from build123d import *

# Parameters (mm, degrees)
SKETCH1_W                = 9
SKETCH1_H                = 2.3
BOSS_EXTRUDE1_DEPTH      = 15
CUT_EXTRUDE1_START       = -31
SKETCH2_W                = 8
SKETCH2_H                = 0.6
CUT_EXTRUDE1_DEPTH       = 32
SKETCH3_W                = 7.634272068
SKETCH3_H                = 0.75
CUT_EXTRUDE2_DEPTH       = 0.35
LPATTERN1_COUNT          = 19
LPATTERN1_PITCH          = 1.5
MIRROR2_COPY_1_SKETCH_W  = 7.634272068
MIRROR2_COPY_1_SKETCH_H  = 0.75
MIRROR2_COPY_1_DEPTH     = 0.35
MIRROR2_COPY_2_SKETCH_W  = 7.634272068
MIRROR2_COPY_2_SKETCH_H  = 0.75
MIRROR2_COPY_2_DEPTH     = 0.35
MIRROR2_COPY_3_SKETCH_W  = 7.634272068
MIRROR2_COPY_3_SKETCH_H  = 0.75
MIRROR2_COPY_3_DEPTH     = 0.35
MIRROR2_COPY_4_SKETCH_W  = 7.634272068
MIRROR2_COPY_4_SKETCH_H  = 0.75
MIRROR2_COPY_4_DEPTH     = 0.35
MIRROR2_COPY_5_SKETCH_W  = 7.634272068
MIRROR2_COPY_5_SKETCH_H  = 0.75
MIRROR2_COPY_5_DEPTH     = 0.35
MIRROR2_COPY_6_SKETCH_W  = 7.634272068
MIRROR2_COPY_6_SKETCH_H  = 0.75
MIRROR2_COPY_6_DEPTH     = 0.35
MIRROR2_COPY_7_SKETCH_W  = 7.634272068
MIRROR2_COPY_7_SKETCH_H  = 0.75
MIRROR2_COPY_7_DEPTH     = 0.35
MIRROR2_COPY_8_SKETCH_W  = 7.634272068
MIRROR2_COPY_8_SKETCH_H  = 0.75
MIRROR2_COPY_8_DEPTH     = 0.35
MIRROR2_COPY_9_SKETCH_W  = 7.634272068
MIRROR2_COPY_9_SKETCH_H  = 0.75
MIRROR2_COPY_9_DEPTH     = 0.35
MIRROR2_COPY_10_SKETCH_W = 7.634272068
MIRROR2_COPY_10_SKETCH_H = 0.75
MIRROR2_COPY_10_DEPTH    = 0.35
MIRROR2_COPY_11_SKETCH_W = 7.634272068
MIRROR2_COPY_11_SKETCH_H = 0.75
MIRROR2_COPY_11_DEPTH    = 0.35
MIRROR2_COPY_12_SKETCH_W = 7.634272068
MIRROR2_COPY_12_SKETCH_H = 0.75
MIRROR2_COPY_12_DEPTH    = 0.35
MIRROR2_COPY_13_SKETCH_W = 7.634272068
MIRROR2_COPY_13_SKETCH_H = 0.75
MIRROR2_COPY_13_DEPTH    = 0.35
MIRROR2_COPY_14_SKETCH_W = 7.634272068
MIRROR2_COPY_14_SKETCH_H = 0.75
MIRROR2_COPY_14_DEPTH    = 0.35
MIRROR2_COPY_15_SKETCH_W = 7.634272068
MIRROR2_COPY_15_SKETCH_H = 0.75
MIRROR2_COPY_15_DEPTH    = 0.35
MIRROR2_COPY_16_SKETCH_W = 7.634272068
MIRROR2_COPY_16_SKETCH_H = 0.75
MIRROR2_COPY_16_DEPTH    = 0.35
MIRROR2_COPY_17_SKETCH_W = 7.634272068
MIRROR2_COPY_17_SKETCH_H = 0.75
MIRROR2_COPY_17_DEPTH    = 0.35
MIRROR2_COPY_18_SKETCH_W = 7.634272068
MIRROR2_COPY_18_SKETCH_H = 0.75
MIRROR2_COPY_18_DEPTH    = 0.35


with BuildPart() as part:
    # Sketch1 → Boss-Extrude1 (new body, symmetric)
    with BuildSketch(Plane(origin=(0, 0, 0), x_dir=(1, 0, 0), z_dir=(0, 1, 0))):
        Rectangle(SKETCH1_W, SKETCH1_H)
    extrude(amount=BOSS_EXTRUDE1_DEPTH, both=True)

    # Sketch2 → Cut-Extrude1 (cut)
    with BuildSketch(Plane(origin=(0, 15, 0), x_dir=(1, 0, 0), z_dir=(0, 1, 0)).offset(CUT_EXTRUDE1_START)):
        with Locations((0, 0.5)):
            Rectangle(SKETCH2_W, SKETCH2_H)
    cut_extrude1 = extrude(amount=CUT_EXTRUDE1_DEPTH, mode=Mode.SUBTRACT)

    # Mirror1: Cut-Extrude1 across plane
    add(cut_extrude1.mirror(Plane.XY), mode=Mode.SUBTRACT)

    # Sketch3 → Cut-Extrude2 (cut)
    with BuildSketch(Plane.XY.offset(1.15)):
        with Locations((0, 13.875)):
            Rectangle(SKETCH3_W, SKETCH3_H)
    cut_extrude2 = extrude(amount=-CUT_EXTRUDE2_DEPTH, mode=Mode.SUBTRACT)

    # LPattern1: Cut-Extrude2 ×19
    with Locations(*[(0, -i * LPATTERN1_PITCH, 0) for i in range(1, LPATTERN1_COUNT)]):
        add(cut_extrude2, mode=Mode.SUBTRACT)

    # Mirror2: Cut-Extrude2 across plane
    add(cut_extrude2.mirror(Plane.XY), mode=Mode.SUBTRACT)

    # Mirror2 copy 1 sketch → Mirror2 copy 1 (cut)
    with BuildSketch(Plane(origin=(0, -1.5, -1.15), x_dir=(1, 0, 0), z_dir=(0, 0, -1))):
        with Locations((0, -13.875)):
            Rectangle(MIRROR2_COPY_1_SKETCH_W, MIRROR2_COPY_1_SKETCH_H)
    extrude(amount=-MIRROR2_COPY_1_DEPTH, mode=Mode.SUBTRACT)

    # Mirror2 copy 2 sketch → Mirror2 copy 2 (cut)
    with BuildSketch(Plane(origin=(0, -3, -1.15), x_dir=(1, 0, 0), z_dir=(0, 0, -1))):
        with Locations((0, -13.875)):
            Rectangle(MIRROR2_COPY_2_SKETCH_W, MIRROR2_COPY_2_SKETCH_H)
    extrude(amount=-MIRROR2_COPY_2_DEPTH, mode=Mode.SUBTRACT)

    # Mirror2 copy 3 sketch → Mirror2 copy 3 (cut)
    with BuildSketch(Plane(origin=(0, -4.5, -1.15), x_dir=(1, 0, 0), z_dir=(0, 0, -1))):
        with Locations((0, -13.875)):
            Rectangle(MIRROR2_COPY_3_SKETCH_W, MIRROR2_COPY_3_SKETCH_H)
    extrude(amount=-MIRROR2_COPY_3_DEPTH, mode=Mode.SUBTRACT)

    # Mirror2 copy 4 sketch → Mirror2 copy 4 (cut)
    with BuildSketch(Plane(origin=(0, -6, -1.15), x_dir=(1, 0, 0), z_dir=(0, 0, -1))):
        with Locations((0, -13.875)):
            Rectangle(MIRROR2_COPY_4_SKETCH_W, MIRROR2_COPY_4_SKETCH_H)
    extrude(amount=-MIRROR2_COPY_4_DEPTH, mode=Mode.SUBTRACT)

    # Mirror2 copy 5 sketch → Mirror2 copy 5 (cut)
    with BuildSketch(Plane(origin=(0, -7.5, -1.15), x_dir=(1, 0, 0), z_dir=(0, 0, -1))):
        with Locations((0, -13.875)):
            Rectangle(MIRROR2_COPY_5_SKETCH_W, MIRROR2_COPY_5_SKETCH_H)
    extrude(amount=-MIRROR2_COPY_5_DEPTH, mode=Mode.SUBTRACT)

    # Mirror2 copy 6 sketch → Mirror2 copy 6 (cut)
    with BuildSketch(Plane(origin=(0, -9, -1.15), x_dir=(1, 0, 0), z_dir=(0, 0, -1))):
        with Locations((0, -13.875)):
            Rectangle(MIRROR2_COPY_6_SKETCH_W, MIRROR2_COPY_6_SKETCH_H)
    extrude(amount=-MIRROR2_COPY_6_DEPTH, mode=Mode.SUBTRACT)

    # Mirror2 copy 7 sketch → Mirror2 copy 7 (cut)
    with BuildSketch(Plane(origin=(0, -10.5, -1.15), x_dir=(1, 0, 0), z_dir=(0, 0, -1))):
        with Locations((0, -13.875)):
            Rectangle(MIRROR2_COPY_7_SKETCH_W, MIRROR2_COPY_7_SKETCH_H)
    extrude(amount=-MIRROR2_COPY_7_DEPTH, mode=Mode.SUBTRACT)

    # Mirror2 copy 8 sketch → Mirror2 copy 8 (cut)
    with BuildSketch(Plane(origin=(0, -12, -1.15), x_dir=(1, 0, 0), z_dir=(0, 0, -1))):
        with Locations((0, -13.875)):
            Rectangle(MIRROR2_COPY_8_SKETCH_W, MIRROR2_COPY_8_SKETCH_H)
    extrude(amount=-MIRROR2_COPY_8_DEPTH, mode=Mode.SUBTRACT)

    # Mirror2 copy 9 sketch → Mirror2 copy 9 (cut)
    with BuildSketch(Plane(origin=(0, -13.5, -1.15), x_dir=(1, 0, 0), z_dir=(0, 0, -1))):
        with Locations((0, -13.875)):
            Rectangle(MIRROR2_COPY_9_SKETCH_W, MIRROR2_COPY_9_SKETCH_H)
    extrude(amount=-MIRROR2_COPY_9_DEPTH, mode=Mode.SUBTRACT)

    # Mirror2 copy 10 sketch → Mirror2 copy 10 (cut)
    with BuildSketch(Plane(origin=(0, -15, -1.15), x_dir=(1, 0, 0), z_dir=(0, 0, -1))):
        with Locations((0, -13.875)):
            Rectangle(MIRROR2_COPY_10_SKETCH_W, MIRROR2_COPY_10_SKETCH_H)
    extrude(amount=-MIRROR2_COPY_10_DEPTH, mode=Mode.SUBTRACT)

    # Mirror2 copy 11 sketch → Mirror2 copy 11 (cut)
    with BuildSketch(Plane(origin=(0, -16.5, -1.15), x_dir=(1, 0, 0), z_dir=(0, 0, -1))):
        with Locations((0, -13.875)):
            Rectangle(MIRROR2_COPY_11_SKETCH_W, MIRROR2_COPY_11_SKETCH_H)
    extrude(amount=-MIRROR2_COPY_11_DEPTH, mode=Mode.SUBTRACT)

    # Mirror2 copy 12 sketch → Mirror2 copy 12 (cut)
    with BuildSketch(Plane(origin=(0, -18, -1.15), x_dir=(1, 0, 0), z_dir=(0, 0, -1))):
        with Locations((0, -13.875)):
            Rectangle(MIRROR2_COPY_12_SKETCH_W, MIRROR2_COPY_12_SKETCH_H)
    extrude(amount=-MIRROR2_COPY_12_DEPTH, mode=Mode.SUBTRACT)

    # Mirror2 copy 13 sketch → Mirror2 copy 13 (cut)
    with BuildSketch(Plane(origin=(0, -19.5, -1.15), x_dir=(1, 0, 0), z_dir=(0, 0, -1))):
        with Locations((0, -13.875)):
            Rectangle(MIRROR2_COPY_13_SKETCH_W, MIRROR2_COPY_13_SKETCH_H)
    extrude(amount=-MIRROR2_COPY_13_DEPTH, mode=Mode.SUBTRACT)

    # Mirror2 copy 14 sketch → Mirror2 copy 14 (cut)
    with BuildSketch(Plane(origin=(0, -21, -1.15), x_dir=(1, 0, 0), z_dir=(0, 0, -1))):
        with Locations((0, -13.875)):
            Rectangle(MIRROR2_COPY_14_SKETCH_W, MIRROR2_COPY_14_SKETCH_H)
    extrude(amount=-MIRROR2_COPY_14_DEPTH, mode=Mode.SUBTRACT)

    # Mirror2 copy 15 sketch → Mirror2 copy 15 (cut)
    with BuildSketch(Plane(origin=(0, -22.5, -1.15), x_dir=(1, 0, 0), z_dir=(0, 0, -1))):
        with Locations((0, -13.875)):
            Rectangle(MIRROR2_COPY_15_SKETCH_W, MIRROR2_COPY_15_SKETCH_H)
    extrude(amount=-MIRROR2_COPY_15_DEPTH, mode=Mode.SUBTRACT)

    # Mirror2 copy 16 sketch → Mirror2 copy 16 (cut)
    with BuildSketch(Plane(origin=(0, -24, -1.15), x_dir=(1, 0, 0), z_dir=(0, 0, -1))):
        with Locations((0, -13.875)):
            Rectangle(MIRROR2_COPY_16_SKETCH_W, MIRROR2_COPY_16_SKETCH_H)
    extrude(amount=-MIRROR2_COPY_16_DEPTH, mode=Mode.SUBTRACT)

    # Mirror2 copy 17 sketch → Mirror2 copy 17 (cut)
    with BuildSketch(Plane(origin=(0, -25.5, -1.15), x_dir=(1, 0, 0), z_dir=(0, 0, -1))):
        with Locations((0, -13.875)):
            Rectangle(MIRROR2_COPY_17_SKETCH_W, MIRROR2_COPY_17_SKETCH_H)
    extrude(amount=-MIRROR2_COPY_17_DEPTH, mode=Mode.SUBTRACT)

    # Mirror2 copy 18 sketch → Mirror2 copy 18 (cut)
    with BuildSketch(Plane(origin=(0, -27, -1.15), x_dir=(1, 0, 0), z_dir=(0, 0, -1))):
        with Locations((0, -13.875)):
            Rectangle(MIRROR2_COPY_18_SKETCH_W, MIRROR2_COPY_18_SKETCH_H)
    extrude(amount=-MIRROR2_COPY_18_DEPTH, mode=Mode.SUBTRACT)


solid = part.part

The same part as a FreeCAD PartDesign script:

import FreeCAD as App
import Part
import Sketcher

V = App.Vector


def add_polygon(sketch, points):
    """Adds a closed chain of lines whose ends are joined by coincident constraints."""
    first, n = sketch.GeometryCount, len(points)
    for a, b in zip(points, points[1:] + points[:1]):
        sketch.addGeometry(Part.LineSegment(App.Vector(*a, 0), App.Vector(*b, 0)), False)
    for i in range(n):
        sketch.addConstraint(Sketcher.Constraint("Coincident", first + i, 2, first + (i + 1) % n, 1))

doc = App.newDocument("Part")
body = doc.addObject("PartDesign::Body", "Body")

sketch1 = body.newObject("Sketcher::SketchObject", "Sketch")
sketch1.AttachmentSupport = (doc.getObject("XZ_Plane"), [""])
sketch1.MapMode = "FlatFace"
add_polygon(sketch1, [(-4.5, -1.1), (-4.5, 1.1), (4.5, 1.1), (4.5, -1.1)])
sketch1.addConstraint([
    Sketcher.Constraint("Vertical", 0),
    Sketcher.Constraint("Horizontal", 1),
    Sketcher.Constraint("Vertical", 2),
    Sketcher.Constraint("Horizontal", 3),
    Sketcher.Constraint("Symmetric", 0, 2, 2, 2, -1, 1),
    Sketcher.Constraint("DistanceX", 1, 1, 1, 2, 9.0),
    Sketcher.Constraint("DistanceY", 0, 1, 0, 2, 2.3),
])
pad1 = body.newObject("PartDesign::Pad", "Pad")
pad1.Profile = sketch1
pad1.Length = 30
pad1.Midplane = True

sketch2 = body.newObject("Sketcher::SketchObject", "Sketch001")
sketch2.AttachmentSupport = (doc.getObject("XZ_Plane"), [""])
sketch2.MapMode = "FlatFace"
sketch2.AttachmentOffset = App.Placement(V(0, 0, 16), App.Rotation())
add_polygon(sketch2, [(-4, -0.8), (-4, -0.2), (4, -0.2), (4, -0.8)])
sketch2.addConstraint([
    Sketcher.Constraint("Vertical", 0),
    Sketcher.Constraint("Horizontal", 1),
    Sketcher.Constraint("Vertical", 2),
    Sketcher.Constraint("Horizontal", 3),
    Sketcher.Constraint("DistanceX", 1, 1, 1, 2, 8.0),
    Sketcher.Constraint("DistanceY", 0, 1, 0, 2, 0.6),
    Sketcher.Constraint("DistanceX", 0, 2, -1, 1, 4.0),
    Sketcher.Constraint("DistanceY", 0, 2, -1, 1, 0.2),
])
pocket1 = body.newObject("PartDesign::Pocket", "Pocket")
pocket1.Profile = sketch2
pocket1.Length = 32
doc.recompute()

mirrored = body.newObject("PartDesign::Mirrored", "Mirrored")
mirrored.Originals = [pocket1]
mirrored.MirrorPlane = (doc.getObject("XY_Plane"), [""])
body.Tip = mirrored

sketch3 = body.newObject("Sketcher::SketchObject", "Sketch002")
sketch3.AttachmentSupport = (doc.getObject("XY_Plane"), [""])
sketch3.MapMode = "FlatFace"
sketch3.AttachmentOffset = App.Placement(V(0, 0, 1.15), App.Rotation())
add_polygon(sketch3, [(-3.8, 14.2), (-3.8, 13.5), (3.8, 13.5), (3.8, 14.2)])
sketch3.addConstraint([
    Sketcher.Constraint("Vertical", 0),
    Sketcher.Constraint("Horizontal", 1),
    Sketcher.Constraint("Vertical", 2),
    Sketcher.Constraint("Horizontal", 3),
    Sketcher.Constraint("DistanceY", 0, 2, 0, 1, 0.75),
    Sketcher.Constraint("DistanceY", -1, 1, 0, 2, 13.5),
    Sketcher.Constraint("DistanceX", 1, 1, 1, 2, 7.634272),
    Sketcher.Constraint("DistanceX", 0, 2, -1, 1, 3.817136),
])
pocket2 = body.newObject("PartDesign::Pocket", "Pocket001")
pocket2.Profile = sketch3
pocket2.Length = 0.35
doc.recompute()

linearpattern = body.newObject("PartDesign::LinearPattern", "LinearPattern")
linearpattern.Originals = [pocket2]
linearpattern.Direction = (doc.getObject("Y_Axis"), [""])
linearpattern.Mode = "offset"
linearpattern.Offset = 1.5
linearpattern.Occurrences = 19
linearpattern.Reversed = True
body.Tip = linearpattern
doc.recompute()

mirrored2 = body.newObject("PartDesign::Mirrored", "Mirrored001")
mirrored2.Originals = [pocket2]
mirrored2.MirrorPlane = (doc.getObject("XY_Plane"), [""])
body.Tip = mirrored2

sketch4 = body.newObject("Sketcher::SketchObject", "Sketch003")
sketch4.AttachmentSupport = (doc.getObject("XY_Plane"), [""])
sketch4.MapMode = "FlatFace"
sketch4.AttachmentOffset = App.Placement(V(0, 0, -1.15), App.Rotation())
add_polygon(sketch4, [(-3.8, 12), (-3.8, 12.8), (3.8, 12.8), (3.8, 12)])
sketch4.addConstraint([
    Sketcher.Constraint("Vertical", 0),
    Sketcher.Constraint("Horizontal", 1),
    Sketcher.Constraint("Vertical", 2),
    Sketcher.Constraint("Horizontal", 3),
    Sketcher.Constraint("DistanceY", -1, 1, 2, 2, 12.0),
    Sketcher.Constraint("DistanceY", 0, 1, 0, 2, 0.75),
    Sketcher.Constraint("DistanceX", 1, 1, 1, 2, 7.634272),
    Sketcher.Constraint("DistanceX", 0, 2, -1, 1, 3.817136),
])
pocket3 = body.newObject("PartDesign::Pocket", "Pocket002")
pocket3.Profile = sketch4
pocket3.Length = 0.35
pocket3.Reversed = True

sketch5 = body.newObject("Sketcher::SketchObject", "Sketch004")
sketch5.AttachmentSupport = (doc.getObject("XY_Plane"), [""])
sketch5.MapMode = "FlatFace"
sketch5.AttachmentOffset = App.Placement(V(0, 0, -1.15), App.Rotation())
add_polygon(sketch5, [(-3.8, 10.5), (-3.8, 11.2), (3.8, 11.2), (3.8, 10.5)])
sketch5.addConstraint([
    Sketcher.Constraint("Vertical", 0),
    Sketcher.Constraint("Horizontal", 1),
    Sketcher.Constraint("Vertical", 2),
    Sketcher.Constraint("Horizontal", 3),
    Sketcher.Constraint("DistanceY", 0, 1, 0, 2, 0.75),
    Sketcher.Constraint("DistanceY", -1, 1, 2, 2, 10.5),
    Sketcher.Constraint("DistanceX", 1, 1, 1, 2, 7.634272),
    Sketcher.Constraint("DistanceX", 0, 2, -1, 1, 3.817136),
])
pocket4 = body.newObject("PartDesign::Pocket", "Pocket003")
pocket4.Profile = sketch5
pocket4.Length = 0.35
pocket4.Reversed = True

sketch6 = body.newObject("Sketcher::SketchObject", "Sketch005")
sketch6.AttachmentSupport = (doc.getObject("XY_Plane"), [""])
sketch6.MapMode = "FlatFace"
sketch6.AttachmentOffset = App.Placement(V(0, 0, -1.15), App.Rotation())
add_polygon(sketch6, [(-3.8, 9), (-3.8, 9.8), (3.8, 9.8), (3.8, 9)])
sketch6.addConstraint([
    Sketcher.Constraint("Vertical", 0),
    Sketcher.Constraint("Horizontal", 1),
    Sketcher.Constraint("Vertical", 2),
    Sketcher.Constraint("Horizontal", 3),
    Sketcher.Constraint("DistanceY", -1, 1, 2, 2, 9.0),
    Sketcher.Constraint("DistanceY", 0, 1, 0, 2, 0.75),
    Sketcher.Constraint("DistanceX", 1, 1, 1, 2, 7.634272),
    Sketcher.Constraint("DistanceX", 0, 2, -1, 1, 3.817136),
])
pocket5 = body.newObject("PartDesign::Pocket", "Pocket004")
pocket5.Profile = sketch6
pocket5.Length = 0.35
pocket5.Reversed = True

sketch7 = body.newObject("Sketcher::SketchObject", "Sketch006")
sketch7.AttachmentSupport = (doc.getObject("XY_Plane"), [""])
sketch7.MapMode = "FlatFace"
sketch7.AttachmentOffset = App.Placement(V(0, 0, -1.15), App.Rotation())
add_polygon(sketch7, [(-3.8, 7.5), (-3.8, 8.2), (3.8, 8.2), (3.8, 7.5)])
sketch7.addConstraint([
    Sketcher.Constraint("Vertical", 0),
    Sketcher.Constraint("Horizontal", 1),
    Sketcher.Constraint("Vertical", 2),
    Sketcher.Constraint("Horizontal", 3),
    Sketcher.Constraint("DistanceY", 0, 1, 0, 2, 0.75),
    Sketcher.Constraint("DistanceY", -1, 1, 2, 2, 7.5),
    Sketcher.Constraint("DistanceX", 1, 1, 1, 2, 7.634272),
    Sketcher.Constraint("DistanceX", 0, 2, -1, 1, 3.817136),
])
pocket6 = body.newObject("PartDesign::Pocket", "Pocket005")
pocket6.Profile = sketch7
pocket6.Length = 0.35
pocket6.Reversed = True

sketch8 = body.newObject("Sketcher::SketchObject", "Sketch007")
sketch8.AttachmentSupport = (doc.getObject("XY_Plane"), [""])
sketch8.MapMode = "FlatFace"
sketch8.AttachmentOffset = App.Placement(V(0, 0, -1.15), App.Rotation())
add_polygon(sketch8, [(-3.8, 6), (-3.8, 6.8), (3.8, 6.8), (3.8, 6)])
sketch8.addConstraint([
    Sketcher.Constraint("Vertical", 0),
    Sketcher.Constraint("Horizontal", 1),
    Sketcher.Constraint("Vertical", 2),
    Sketcher.Constraint("Horizontal", 3),
    Sketcher.Constraint("DistanceY", -1, 1, 2, 2, 6.0),
    Sketcher.Constraint("DistanceY", 0, 1, 0, 2, 0.75),
    Sketcher.Constraint("DistanceX", 1, 1, 1, 2, 7.634272),
    Sketcher.Constraint("DistanceX", 0, 2, -1, 1, 3.817136),
])
pocket7 = body.newObject("PartDesign::Pocket", "Pocket006")
pocket7.Profile = sketch8
pocket7.Length = 0.35
pocket7.Reversed = True

sketch9 = body.newObject("Sketcher::SketchObject", "Sketch008")
sketch9.AttachmentSupport = (doc.getObject("XY_Plane"), [""])
sketch9.MapMode = "FlatFace"
sketch9.AttachmentOffset = App.Placement(V(0, 0, -1.15), App.Rotation())
add_polygon(sketch9, [(-3.8, 4.5), (-3.8, 5.2), (3.8, 5.2), (3.8, 4.5)])
sketch9.addConstraint([
    Sketcher.Constraint("Vertical", 0),
    Sketcher.Constraint("Horizontal", 1),
    Sketcher.Constraint("Vertical", 2),
    Sketcher.Constraint("Horizontal", 3),
    Sketcher.Constraint("DistanceY", 0, 1, 0, 2, 0.75),
    Sketcher.Constraint("DistanceY", -1, 1, 2, 2, 4.5),
    Sketcher.Constraint("DistanceX", 1, 1, 1, 2, 7.634272),
    Sketcher.Constraint("DistanceX", 0, 2, -1, 1, 3.817136),
])
pocket8 = body.newObject("PartDesign::Pocket", "Pocket007")
pocket8.Profile = sketch9
pocket8.Length = 0.35
pocket8.Reversed = True

sketch10 = body.newObject("Sketcher::SketchObject", "Sketch009")
sketch10.AttachmentSupport = (doc.getObject("XY_Plane"), [""])
sketch10.MapMode = "FlatFace"
sketch10.AttachmentOffset = App.Placement(V(0, 0, -1.15), App.Rotation())
add_polygon(sketch10, [(-3.8, 3), (-3.8, 3.8), (3.8, 3.8), (3.8, 3)])
sketch10.addConstraint([
    Sketcher.Constraint("Vertical", 0),
    Sketcher.Constraint("Horizontal", 1),
    Sketcher.Constraint("Vertical", 2),
    Sketcher.Constraint("Horizontal", 3),
    Sketcher.Constraint("DistanceY", -1, 1, 2, 2, 3.0),
    Sketcher.Constraint("DistanceY", 0, 1, 0, 2, 0.75),
    Sketcher.Constraint("DistanceX", 1, 1, 1, 2, 7.634272),
    Sketcher.Constraint("DistanceX", 0, 2, -1, 1, 3.817136),
])
pocket9 = body.newObject("PartDesign::Pocket", "Pocket008")
pocket9.Profile = sketch10
pocket9.Length = 0.35
pocket9.Reversed = True

sketch11 = body.newObject("Sketcher::SketchObject", "Sketch010")
sketch11.AttachmentSupport = (doc.getObject("XY_Plane"), [""])
sketch11.MapMode = "FlatFace"
sketch11.AttachmentOffset = App.Placement(V(0, 0, -1.15), App.Rotation())
add_polygon(sketch11, [(-3.8, 1.5), (-3.8, 2.2), (3.8, 2.2), (3.8, 1.5)])
sketch11.addConstraint([
    Sketcher.Constraint("Vertical", 0),
    Sketcher.Constraint("Horizontal", 1),
    Sketcher.Constraint("Vertical", 2),
    Sketcher.Constraint("Horizontal", 3),
    Sketcher.Constraint("DistanceY", 0, 1, 0, 2, 0.75),
    Sketcher.Constraint("DistanceY", -1, 1, 2, 2, 1.5),
    Sketcher.Constraint("DistanceX", 1, 1, 1, 2, 7.634272),
    Sketcher.Constraint("DistanceX", 0, 2, -1, 1, 3.817136),
])
pocket10 = body.newObject("PartDesign::Pocket", "Pocket009")
pocket10.Profile = sketch11
pocket10.Length = 0.35
pocket10.Reversed = True

sketch12 = body.newObject("Sketcher::SketchObject", "Sketch011")
sketch12.AttachmentSupport = (doc.getObject("XY_Plane"), [""])
sketch12.MapMode = "FlatFace"
sketch12.AttachmentOffset = App.Placement(V(0, 0, -1.15), App.Rotation())
add_polygon(sketch12, [(-3.8, 0), (-3.8, 0.8), (3.8, 0.8), (3.8, 0)])
sketch12.addConstraint([
    Sketcher.Constraint("Vertical", 0),
    Sketcher.Constraint("Horizontal", 1),
    Sketcher.Constraint("Vertical", 2),
    Sketcher.Constraint("Horizontal", 3),
    Sketcher.Constraint("Symmetric", 2, 2, 3, 2, -1, 1),
    Sketcher.Constraint("DistanceY", 0, 1, 0, 2, 0.75),
    Sketcher.Constraint("DistanceX", 1, 1, 1, 2, 7.634272),
])
pocket11 = body.newObject("PartDesign::Pocket", "Pocket010")
pocket11.Profile = sketch12
pocket11.Length = 0.35
pocket11.Reversed = True

sketch13 = body.newObject("Sketcher::SketchObject", "Sketch012")
sketch13.AttachmentSupport = (doc.getObject("XY_Plane"), [""])
sketch13.MapMode = "FlatFace"
sketch13.AttachmentOffset = App.Placement(V(0, 0, -1.15), App.Rotation())
add_polygon(sketch13, [(-3.8, -1.5), (-3.8, -0.8), (3.8, -0.8), (3.8, -1.5)])
sketch13.addConstraint([
    Sketcher.Constraint("Vertical", 0),
    Sketcher.Constraint("Horizontal", 1),
    Sketcher.Constraint("Vertical", 2),
    Sketcher.Constraint("Horizontal", 3),
    Sketcher.Constraint("DistanceY", 0, 1, 0, 2, 0.75),
    Sketcher.Constraint("DistanceY", 2, 2, -1, 1, 1.5),
    Sketcher.Constraint("DistanceX", 1, 1, 1, 2, 7.634272),
    Sketcher.Constraint("DistanceX", 0, 2, -1, 1, 3.817136),
])
pocket12 = body.newObject("PartDesign::Pocket", "Pocket011")
pocket12.Profile = sketch13
pocket12.Length = 0.35
pocket12.Reversed = True

sketch14 = body.newObject("Sketcher::SketchObject", "Sketch013")
sketch14.AttachmentSupport = (doc.getObject("XY_Plane"), [""])
sketch14.MapMode = "FlatFace"
sketch14.AttachmentOffset = App.Placement(V(0, 0, -1.15), App.Rotation())
add_polygon(sketch14, [(-3.8, -3), (-3.8, -2.2), (3.8, -2.2), (3.8, -3)])
sketch14.addConstraint([
    Sketcher.Constraint("Vertical", 0),
    Sketcher.Constraint("Horizontal", 1),
    Sketcher.Constraint("Vertical", 2),
    Sketcher.Constraint("Horizontal", 3),
    Sketcher.Constraint("DistanceY", 2, 2, -1, 1, 3.0),
    Sketcher.Constraint("DistanceY", 0, 1, 0, 2, 0.75),
    Sketcher.Constraint("DistanceX", 1, 1, 1, 2, 7.634272),
    Sketcher.Constraint("DistanceX", 0, 2, -1, 1, 3.817136),
])
pocket13 = body.newObject("PartDesign::Pocket", "Pocket012")
pocket13.Profile = sketch14
pocket13.Length = 0.35
pocket13.Reversed = True

sketch15 = body.newObject("Sketcher::SketchObject", "Sketch014")
sketch15.AttachmentSupport = (doc.getObject("XY_Plane"), [""])
sketch15.MapMode = "FlatFace"
sketch15.AttachmentOffset = App.Placement(V(0, 0, -1.15), App.Rotation())
add_polygon(sketch15, [(-3.8, -4.5), (-3.8, -3.8), (3.8, -3.8), (3.8, -4.5)])
sketch15.addConstraint([
    Sketcher.Constraint("Vertical", 0),
    Sketcher.Constraint("Horizontal", 1),
    Sketcher.Constraint("Vertical", 2),
    Sketcher.Constraint("Horizontal", 3),
    Sketcher.Constraint("DistanceY", 0, 1, 0, 2, 0.75),
    Sketcher.Constraint("DistanceY", 2, 2, -1, 1, 4.5),
    Sketcher.Constraint("DistanceX", 1, 1, 1, 2, 7.634272),
    Sketcher.Constraint("DistanceX", 0, 2, -1, 1, 3.817136),
])
pocket14 = body.newObject("PartDesign::Pocket", "Pocket013")
pocket14.Profile = sketch15
pocket14.Length = 0.35
pocket14.Reversed = True

sketch16 = body.newObject("Sketcher::SketchObject", "Sketch015")
sketch16.AttachmentSupport = (doc.getObject("XY_Plane"), [""])
sketch16.MapMode = "FlatFace"
sketch16.AttachmentOffset = App.Placement(V(0, 0, -1.15), App.Rotation())
add_polygon(sketch16, [(-3.8, -6), (-3.8, -5.2), (3.8, -5.2), (3.8, -6)])
sketch16.addConstraint([
    Sketcher.Constraint("Vertical", 0),
    Sketcher.Constraint("Horizontal", 1),
    Sketcher.Constraint("Vertical", 2),
    Sketcher.Constraint("Horizontal", 3),
    Sketcher.Constraint("DistanceY", 2, 2, -1, 1, 6.0),
    Sketcher.Constraint("DistanceY", 0, 1, 0, 2, 0.75),
    Sketcher.Constraint("DistanceX", 1, 1, 1, 2, 7.634272),
    Sketcher.Constraint("DistanceX", 0, 2, -1, 1, 3.817136),
])
pocket15 = body.newObject("PartDesign::Pocket", "Pocket014")
pocket15.Profile = sketch16
pocket15.Length = 0.35
pocket15.Reversed = True

sketch17 = body.newObject("Sketcher::SketchObject", "Sketch016")
sketch17.AttachmentSupport = (doc.getObject("XY_Plane"), [""])
sketch17.MapMode = "FlatFace"
sketch17.AttachmentOffset = App.Placement(V(0, 0, -1.15), App.Rotation())
add_polygon(sketch17, [(-3.8, -7.5), (-3.8, -6.8), (3.8, -6.8), (3.8, -7.5)])
sketch17.addConstraint([
    Sketcher.Constraint("Vertical", 0),
    Sketcher.Constraint("Horizontal", 1),
    Sketcher.Constraint("Vertical", 2),
    Sketcher.Constraint("Horizontal", 3),
    Sketcher.Constraint("DistanceY", 0, 1, 0, 2, 0.75),
    Sketcher.Constraint("DistanceY", 2, 2, -1, 1, 7.5),
    Sketcher.Constraint("DistanceX", 1, 1, 1, 2, 7.634272),
    Sketcher.Constraint("DistanceX", 0, 2, -1, 1, 3.817136),
])
pocket16 = body.newObject("PartDesign::Pocket", "Pocket015")
pocket16.Profile = sketch17
pocket16.Length = 0.35
pocket16.Reversed = True

sketch18 = body.newObject("Sketcher::SketchObject", "Sketch017")
sketch18.AttachmentSupport = (doc.getObject("XY_Plane"), [""])
sketch18.MapMode = "FlatFace"
sketch18.AttachmentOffset = App.Placement(V(0, 0, -1.15), App.Rotation())
add_polygon(sketch18, [(-3.8, -9), (-3.8, -8.2), (3.8, -8.2), (3.8, -9)])
sketch18.addConstraint([
    Sketcher.Constraint("Vertical", 0),
    Sketcher.Constraint("Horizontal", 1),
    Sketcher.Constraint("Vertical", 2),
    Sketcher.Constraint("Horizontal", 3),
    Sketcher.Constraint("DistanceY", 2, 2, -1, 1, 9.0),
    Sketcher.Constraint("DistanceY", 0, 1, 0, 2, 0.75),
    Sketcher.Constraint("DistanceX", 1, 1, 1, 2, 7.634272),
    Sketcher.Constraint("DistanceX", 0, 2, -1, 1, 3.817136),
])
pocket17 = body.newObject("PartDesign::Pocket", "Pocket016")
pocket17.Profile = sketch18
pocket17.Length = 0.35
pocket17.Reversed = True

sketch19 = body.newObject("Sketcher::SketchObject", "Sketch018")
sketch19.AttachmentSupport = (doc.getObject("XY_Plane"), [""])
sketch19.MapMode = "FlatFace"
sketch19.AttachmentOffset = App.Placement(V(0, 0, -1.15), App.Rotation())
add_polygon(sketch19, [(-3.8, -10.5), (-3.8, -9.8), (3.8, -9.8), (3.8, -10.5)])
sketch19.addConstraint([
    Sketcher.Constraint("Vertical", 0),
    Sketcher.Constraint("Horizontal", 1),
    Sketcher.Constraint("Vertical", 2),
    Sketcher.Constraint("Horizontal", 3),
    Sketcher.Constraint("DistanceY", 0, 1, 0, 2, 0.75),
    Sketcher.Constraint("DistanceY", 2, 2, -1, 1, 10.5),
    Sketcher.Constraint("DistanceX", 1, 1, 1, 2, 7.634272),
    Sketcher.Constraint("DistanceX", 0, 2, -1, 1, 3.817136),
])
pocket18 = body.newObject("PartDesign::Pocket", "Pocket017")
pocket18.Profile = sketch19
pocket18.Length = 0.35
pocket18.Reversed = True

sketch20 = body.newObject("Sketcher::SketchObject", "Sketch019")
sketch20.AttachmentSupport = (doc.getObject("XY_Plane"), [""])
sketch20.MapMode = "FlatFace"
sketch20.AttachmentOffset = App.Placement(V(0, 0, -1.15), App.Rotation())
add_polygon(sketch20, [(-3.8, -12), (-3.8, -11.2), (3.8, -11.2), (3.8, -12)])
sketch20.addConstraint([
    Sketcher.Constraint("Vertical", 0),
    Sketcher.Constraint("Horizontal", 1),
    Sketcher.Constraint("Vertical", 2),
    Sketcher.Constraint("Horizontal", 3),
    Sketcher.Constraint("DistanceY", 2, 2, -1, 1, 12.0),
    Sketcher.Constraint("DistanceY", 0, 1, 0, 2, 0.75),
    Sketcher.Constraint("DistanceX", 1, 1, 1, 2, 7.634272),
    Sketcher.Constraint("DistanceX", 0, 2, -1, 1, 3.817136),
])
pocket19 = body.newObject("PartDesign::Pocket", "Pocket018")
pocket19.Profile = sketch20
pocket19.Length = 0.35
pocket19.Reversed = True

sketch21 = body.newObject("Sketcher::SketchObject", "Sketch020")
sketch21.AttachmentSupport = (doc.getObject("XY_Plane"), [""])
sketch21.MapMode = "FlatFace"
sketch21.AttachmentOffset = App.Placement(V(0, 0, -1.15), App.Rotation())
add_polygon(sketch21, [(-3.8, -13.5), (-3.8, -12.8), (3.8, -12.8), (3.8, -13.5)])
sketch21.addConstraint([
    Sketcher.Constraint("Vertical", 0),
    Sketcher.Constraint("Horizontal", 1),
    Sketcher.Constraint("Vertical", 2),
    Sketcher.Constraint("Horizontal", 3),
    Sketcher.Constraint("DistanceY", 0, 1, 0, 2, 0.75),
    Sketcher.Constraint("DistanceY", 2, 2, -1, 1, 13.5),
    Sketcher.Constraint("DistanceX", 1, 1, 1, 2, 7.634272),
    Sketcher.Constraint("DistanceX", 0, 2, -1, 1, 3.817136),
])
pocket20 = body.newObject("PartDesign::Pocket", "Pocket019")
pocket20.Profile = sketch21
pocket20.Length = 0.35
pocket20.Reversed = True

doc.recompute()
